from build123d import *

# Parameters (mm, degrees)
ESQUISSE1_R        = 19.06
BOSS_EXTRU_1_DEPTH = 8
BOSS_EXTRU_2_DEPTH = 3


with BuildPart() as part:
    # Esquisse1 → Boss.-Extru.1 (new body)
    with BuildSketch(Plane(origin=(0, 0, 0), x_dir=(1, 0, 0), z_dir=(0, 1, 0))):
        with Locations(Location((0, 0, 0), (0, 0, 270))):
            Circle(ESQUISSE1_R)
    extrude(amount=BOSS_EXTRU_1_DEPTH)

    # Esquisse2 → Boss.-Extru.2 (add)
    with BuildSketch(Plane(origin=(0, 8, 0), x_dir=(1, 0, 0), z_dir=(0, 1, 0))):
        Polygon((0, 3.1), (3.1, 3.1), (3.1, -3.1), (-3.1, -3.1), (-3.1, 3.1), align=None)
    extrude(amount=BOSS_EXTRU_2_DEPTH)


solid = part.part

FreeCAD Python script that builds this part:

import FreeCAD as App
import Part
import Sketcher

V = App.Vector


def add_polygon(sketch, points):
    """Adds a closed chain of lines whose ends are joined by coincident constraints."""
    first, n = sketch.GeometryCount, len(points)
    for a, b in zip(points, points[1:] + points[:1]):
        sketch.addGeometry(Part.LineSegment(App.Vector(*a, 0), App.Vector(*b, 0)), False)
    for i in range(n):
        sketch.addConstraint(Sketcher.Constraint("Coincident", first + i, 2, first + (i + 1) % n, 1))

doc = App.newDocument("Part")
params = doc.addObject("Spreadsheet::Sheet", "Params")
for row, (alias, value) in enumerate([
    ("sketch1_diameter", "38.12 mm"),
    ("pad1_length", "8 mm"),
    ("sketch2_width", "6.2 mm"),
    ("pad2_length", "3 mm"),
], start=1):
    params.set(f"A{row}", alias)
    params.set(f"B{row}", "=" + value)
    params.setAlias(f"B{row}", alias)

body = doc.addObject("PartDesign::Body", "Body")

# Sketch on XZ plane
sketch1 = doc.addObject("Sketcher::SketchObject", "Sketch")
body.addObject(sketch1)
sketch1.AttachmentSupport = (doc.XZ_Plane, [""])
sketch1.MapMode = "FlatFace"
sketch1.addGeometry(Part.Circle(V(0, 0, 0), V(0, 0, 1), 19), False)
sketch1.addConstraint(Sketcher.Constraint("Coincident", 0, 3, -1, 1))
sketch1.addConstraint(Sketcher.Constraint("Diameter", 0, 38.12))
sketch1.setExpression("Constraints[1]", "Params.sketch1_diameter")
pad1 = doc.addObject("PartDesign::Pad", "Pad")
body.addObject(pad1)
pad1.Profile = sketch1
pad1.setExpression("Length", "Params.pad1_length")
pad1.Reversed = True

# Sketch on XZ plane
sketch2 = doc.addObject("Sketcher::SketchObject", "Sketch001")
body.addObject(sketch2)
sketch2.AttachmentSupport = (doc.XZ_Plane, [""])
sketch2.MapMode = "FlatFace"
sketch2.AttachmentOffset = App.Placement(V(0, 0, -8), App.Rotation())
add_polygon(sketch2, [(3, -3), (-3, -3), (-3, 3), (3, 3)])  # lines 0-3
sketch2.addConstraint(Sketcher.Constraint("Horizontal", 0))
sketch2.addConstraint(Sketcher.Constraint("Vertical", 1))
sketch2.addConstraint(Sketcher.Constraint("Horizontal", 2))
sketch2.addConstraint(Sketcher.Constraint("Vertical", 3))
sketch2.addConstraint(Sketcher.Constraint("Symmetric", 0, 2, 2, 2, -1, 1))
sketch2.addConstraint(Sketcher.Constraint("Equal", 2, 1))
sketch2.addConstraint(Sketcher.Constraint("DistanceX", 0, 2, 0, 1, 6.2))
sketch2.setExpression("Constraints[10]", "Params.sketch2_width")
pad2 = doc.addObject("PartDesign::Pad", "Pad001")
body.addObject(pad2)
pad2.Profile = sketch2
pad2.setExpression("Length", "Params.pad2_length")
pad2.Reversed = True

doc.recompute()
